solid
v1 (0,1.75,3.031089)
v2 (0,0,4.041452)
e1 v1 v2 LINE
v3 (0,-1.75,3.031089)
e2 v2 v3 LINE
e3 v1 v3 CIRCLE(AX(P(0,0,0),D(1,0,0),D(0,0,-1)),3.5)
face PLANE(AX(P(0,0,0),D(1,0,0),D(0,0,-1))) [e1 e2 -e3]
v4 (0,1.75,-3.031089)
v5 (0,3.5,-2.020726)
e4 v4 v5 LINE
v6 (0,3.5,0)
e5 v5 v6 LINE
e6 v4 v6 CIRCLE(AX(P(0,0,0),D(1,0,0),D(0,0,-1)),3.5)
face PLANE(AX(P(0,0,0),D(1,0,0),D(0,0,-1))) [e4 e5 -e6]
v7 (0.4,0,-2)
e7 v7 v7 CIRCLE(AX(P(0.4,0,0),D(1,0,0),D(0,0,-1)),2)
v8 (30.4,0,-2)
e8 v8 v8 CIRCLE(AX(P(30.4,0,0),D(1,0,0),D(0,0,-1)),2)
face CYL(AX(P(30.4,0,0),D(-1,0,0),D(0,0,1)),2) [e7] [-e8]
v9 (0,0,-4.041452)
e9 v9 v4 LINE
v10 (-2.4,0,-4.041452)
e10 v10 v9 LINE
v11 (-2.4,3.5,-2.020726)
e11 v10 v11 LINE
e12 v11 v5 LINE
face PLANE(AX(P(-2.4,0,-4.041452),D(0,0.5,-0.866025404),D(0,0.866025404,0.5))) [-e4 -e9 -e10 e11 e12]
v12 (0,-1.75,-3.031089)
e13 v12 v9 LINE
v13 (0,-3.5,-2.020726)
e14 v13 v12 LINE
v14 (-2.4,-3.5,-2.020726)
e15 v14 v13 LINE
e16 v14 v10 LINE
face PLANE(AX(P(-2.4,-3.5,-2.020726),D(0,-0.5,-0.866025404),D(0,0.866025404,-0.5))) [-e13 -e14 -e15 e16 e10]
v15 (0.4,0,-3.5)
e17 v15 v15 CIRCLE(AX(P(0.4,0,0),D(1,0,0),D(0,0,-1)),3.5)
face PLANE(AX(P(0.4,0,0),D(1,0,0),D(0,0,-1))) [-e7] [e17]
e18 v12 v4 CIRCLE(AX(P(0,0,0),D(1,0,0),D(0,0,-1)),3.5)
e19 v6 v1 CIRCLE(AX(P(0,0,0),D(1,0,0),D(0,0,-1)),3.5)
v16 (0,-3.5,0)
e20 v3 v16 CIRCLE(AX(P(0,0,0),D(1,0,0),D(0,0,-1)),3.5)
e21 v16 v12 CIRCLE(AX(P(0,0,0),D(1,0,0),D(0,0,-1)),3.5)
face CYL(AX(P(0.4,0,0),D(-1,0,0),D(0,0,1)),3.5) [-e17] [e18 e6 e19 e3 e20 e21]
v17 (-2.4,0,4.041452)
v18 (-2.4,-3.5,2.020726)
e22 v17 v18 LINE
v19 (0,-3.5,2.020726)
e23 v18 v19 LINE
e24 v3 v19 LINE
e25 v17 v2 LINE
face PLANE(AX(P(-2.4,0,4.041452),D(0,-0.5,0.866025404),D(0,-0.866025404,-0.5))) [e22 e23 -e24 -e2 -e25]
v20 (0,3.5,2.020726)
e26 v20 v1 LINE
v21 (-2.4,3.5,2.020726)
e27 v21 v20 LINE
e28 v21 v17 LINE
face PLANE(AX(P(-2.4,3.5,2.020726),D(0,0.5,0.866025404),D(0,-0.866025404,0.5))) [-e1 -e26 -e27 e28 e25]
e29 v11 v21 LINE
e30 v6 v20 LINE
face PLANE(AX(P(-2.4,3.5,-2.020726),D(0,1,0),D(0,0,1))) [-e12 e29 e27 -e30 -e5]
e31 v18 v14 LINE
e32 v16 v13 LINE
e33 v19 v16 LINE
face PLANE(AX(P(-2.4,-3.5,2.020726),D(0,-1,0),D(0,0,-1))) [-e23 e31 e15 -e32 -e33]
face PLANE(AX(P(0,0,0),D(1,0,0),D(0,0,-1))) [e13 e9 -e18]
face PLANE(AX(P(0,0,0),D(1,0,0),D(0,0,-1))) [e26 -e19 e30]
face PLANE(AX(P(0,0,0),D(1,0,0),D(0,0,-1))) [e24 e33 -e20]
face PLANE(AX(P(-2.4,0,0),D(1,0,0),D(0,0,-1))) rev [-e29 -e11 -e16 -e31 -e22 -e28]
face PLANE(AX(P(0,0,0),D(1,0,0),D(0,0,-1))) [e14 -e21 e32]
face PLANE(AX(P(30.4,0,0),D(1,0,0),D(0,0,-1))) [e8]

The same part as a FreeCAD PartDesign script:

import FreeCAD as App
import Part
import Sketcher
from FreeCAD import Vector
Q = App.Units.Quantity


def add_polygon(sketch, points):
    """Adds a closed chain of lines whose ends are joined by coincident constraints."""
    first, n = sketch.GeometryCount, len(points)
    for a, b in zip(points, points[1:] + points[:1]):
        sketch.addGeometry(Part.LineSegment(App.Vector(*a, 0), App.Vector(*b, 0)), False)
    for i in range(n):
        sketch.addConstraint(Sketcher.Constraint("Coincident", first + i, 2, first + (i + 1) % n, 1))

doc = App.newDocument("Part")
params = doc.addObject("Spreadsheet::Sheet", "Params")
for row, (alias, value) in enumerate([
    ("pad1_length", "2.4 mm"),
    ("sketch2_diameter", "7 mm"),
    ("pad2_length", "0.4 mm"),
    ("sketch3_diameter", "4 mm"),
    ("pad3_length", "30 mm"),
], start=1):
    params.set(f"A{row}", alias)
    params.set(f"B{row}", "=" + value)
    params.setAlias(f"B{row}", alias)

body = doc.addObject("PartDesign::Body", "Body")

# Sketch on YZ plane
sketch1 = doc.addObject("Sketcher::SketchObject", "Sketch")
body.addObject(sketch1)
sketch1.AttachmentSupport = (doc.YZ_Plane, [""])
sketch1.MapMode = "FlatFace"
add_polygon(sketch1, [(0, 4), (-3.5, 2), (-3.5, -2), (0, -4), (3.5, -2), (3.5, 2)])  # lines 0-5
sketch1.addConstraint(Sketcher.Constraint("Vertical", 1))
sketch1.addConstraint(Sketcher.Constraint("Vertical", 4))
sketch1.addConstraint(Sketcher.Constraint("Symmetric", 0, 2, 3, 2, -1, 1))
sketch1.addConstraint(Sketcher.Constraint("Symmetric", 2, 2, 5, 2, -1, 1))
sketch1.addConstraint(Sketcher.Constraint("PointOnObject", 2, 2, -2))
sketch1.addConstraint(Sketcher.Constraint("Parallel", 2, 5))
sketch1.addConstraint(Sketcher.Constraint("Horizontal", 1, 2, 3, 2))
sketch1.addConstraint(Sketcher.Constraint("Angle", 0, Q("-150 deg")))
sketch1.addConstraint(Sketcher.Constraint("DistanceX", 1, 2, 3, 2, Q("7 mm")))
sketch1.addConstraint(Sketcher.Constraint("DistanceY", 1, 2, 1, 1, Q("4.041452 mm")))
pad1 = doc.addObject("PartDesign::Pad", "Pad")
body.addObject(pad1)
pad1.Profile = sketch1
pad1.setExpression("Length", "Params.pad1_length")
pad1.Reversed = True

# Sketch on YZ plane
sketch2 = doc.addObject("Sketcher::SketchObject", "Sketch001")
body.addObject(sketch2)
sketch2.AttachmentSupport = (doc.YZ_Plane, [""])
sketch2.MapMode = "FlatFace"
sketch2.addGeometry(Part.Circle(Vector(0, 0, 0), Vector(0, 0, 1), 3.5), False)
sketch2.addConstraint(Sketcher.Constraint("Coincident", 0, 3, -1, 1))
sketch2.addConstraint(Sketcher.Constraint("Diameter", 0, Q("7 mm")))
sketch2.setExpression("Constraints[1]", "Params.sketch2_diameter")
pad2 = doc.addObject("PartDesign::Pad", "Pad001")
body.addObject(pad2)
pad2.Profile = sketch2
pad2.setExpression("Length", "Params.pad2_length")

# Sketch on YZ plane
sketch3 = doc.addObject("Sketcher::SketchObject", "Sketch002")
body.addObject(sketch3)
sketch3.AttachmentSupport = (doc.YZ_Plane, [""])
sketch3.MapMode = "FlatFace"
sketch3.AttachmentOffset = App.Placement(Vector(0, 0, 0.4), App.Rotation())
sketch3.addGeometry(Part.Circle(Vector(0, 0, 0), Vector(0, 0, 1), 2), False)
sketch3.addConstraint(Sketcher.Constraint("Coincident", 0, 3, -1, 1))
sketch3.addConstraint(Sketcher.Constraint("Diameter", 0, Q("4 mm")))
sketch3.setExpression("Constraints[1]", "Params.sketch3_diameter")
pad3 = doc.addObject("PartDesign::Pad", "Pad002")
body.addObject(pad3)
pad3.Profile = sketch3
pad3.setExpression("Length", "Params.pad3_length")

doc.recompute()
